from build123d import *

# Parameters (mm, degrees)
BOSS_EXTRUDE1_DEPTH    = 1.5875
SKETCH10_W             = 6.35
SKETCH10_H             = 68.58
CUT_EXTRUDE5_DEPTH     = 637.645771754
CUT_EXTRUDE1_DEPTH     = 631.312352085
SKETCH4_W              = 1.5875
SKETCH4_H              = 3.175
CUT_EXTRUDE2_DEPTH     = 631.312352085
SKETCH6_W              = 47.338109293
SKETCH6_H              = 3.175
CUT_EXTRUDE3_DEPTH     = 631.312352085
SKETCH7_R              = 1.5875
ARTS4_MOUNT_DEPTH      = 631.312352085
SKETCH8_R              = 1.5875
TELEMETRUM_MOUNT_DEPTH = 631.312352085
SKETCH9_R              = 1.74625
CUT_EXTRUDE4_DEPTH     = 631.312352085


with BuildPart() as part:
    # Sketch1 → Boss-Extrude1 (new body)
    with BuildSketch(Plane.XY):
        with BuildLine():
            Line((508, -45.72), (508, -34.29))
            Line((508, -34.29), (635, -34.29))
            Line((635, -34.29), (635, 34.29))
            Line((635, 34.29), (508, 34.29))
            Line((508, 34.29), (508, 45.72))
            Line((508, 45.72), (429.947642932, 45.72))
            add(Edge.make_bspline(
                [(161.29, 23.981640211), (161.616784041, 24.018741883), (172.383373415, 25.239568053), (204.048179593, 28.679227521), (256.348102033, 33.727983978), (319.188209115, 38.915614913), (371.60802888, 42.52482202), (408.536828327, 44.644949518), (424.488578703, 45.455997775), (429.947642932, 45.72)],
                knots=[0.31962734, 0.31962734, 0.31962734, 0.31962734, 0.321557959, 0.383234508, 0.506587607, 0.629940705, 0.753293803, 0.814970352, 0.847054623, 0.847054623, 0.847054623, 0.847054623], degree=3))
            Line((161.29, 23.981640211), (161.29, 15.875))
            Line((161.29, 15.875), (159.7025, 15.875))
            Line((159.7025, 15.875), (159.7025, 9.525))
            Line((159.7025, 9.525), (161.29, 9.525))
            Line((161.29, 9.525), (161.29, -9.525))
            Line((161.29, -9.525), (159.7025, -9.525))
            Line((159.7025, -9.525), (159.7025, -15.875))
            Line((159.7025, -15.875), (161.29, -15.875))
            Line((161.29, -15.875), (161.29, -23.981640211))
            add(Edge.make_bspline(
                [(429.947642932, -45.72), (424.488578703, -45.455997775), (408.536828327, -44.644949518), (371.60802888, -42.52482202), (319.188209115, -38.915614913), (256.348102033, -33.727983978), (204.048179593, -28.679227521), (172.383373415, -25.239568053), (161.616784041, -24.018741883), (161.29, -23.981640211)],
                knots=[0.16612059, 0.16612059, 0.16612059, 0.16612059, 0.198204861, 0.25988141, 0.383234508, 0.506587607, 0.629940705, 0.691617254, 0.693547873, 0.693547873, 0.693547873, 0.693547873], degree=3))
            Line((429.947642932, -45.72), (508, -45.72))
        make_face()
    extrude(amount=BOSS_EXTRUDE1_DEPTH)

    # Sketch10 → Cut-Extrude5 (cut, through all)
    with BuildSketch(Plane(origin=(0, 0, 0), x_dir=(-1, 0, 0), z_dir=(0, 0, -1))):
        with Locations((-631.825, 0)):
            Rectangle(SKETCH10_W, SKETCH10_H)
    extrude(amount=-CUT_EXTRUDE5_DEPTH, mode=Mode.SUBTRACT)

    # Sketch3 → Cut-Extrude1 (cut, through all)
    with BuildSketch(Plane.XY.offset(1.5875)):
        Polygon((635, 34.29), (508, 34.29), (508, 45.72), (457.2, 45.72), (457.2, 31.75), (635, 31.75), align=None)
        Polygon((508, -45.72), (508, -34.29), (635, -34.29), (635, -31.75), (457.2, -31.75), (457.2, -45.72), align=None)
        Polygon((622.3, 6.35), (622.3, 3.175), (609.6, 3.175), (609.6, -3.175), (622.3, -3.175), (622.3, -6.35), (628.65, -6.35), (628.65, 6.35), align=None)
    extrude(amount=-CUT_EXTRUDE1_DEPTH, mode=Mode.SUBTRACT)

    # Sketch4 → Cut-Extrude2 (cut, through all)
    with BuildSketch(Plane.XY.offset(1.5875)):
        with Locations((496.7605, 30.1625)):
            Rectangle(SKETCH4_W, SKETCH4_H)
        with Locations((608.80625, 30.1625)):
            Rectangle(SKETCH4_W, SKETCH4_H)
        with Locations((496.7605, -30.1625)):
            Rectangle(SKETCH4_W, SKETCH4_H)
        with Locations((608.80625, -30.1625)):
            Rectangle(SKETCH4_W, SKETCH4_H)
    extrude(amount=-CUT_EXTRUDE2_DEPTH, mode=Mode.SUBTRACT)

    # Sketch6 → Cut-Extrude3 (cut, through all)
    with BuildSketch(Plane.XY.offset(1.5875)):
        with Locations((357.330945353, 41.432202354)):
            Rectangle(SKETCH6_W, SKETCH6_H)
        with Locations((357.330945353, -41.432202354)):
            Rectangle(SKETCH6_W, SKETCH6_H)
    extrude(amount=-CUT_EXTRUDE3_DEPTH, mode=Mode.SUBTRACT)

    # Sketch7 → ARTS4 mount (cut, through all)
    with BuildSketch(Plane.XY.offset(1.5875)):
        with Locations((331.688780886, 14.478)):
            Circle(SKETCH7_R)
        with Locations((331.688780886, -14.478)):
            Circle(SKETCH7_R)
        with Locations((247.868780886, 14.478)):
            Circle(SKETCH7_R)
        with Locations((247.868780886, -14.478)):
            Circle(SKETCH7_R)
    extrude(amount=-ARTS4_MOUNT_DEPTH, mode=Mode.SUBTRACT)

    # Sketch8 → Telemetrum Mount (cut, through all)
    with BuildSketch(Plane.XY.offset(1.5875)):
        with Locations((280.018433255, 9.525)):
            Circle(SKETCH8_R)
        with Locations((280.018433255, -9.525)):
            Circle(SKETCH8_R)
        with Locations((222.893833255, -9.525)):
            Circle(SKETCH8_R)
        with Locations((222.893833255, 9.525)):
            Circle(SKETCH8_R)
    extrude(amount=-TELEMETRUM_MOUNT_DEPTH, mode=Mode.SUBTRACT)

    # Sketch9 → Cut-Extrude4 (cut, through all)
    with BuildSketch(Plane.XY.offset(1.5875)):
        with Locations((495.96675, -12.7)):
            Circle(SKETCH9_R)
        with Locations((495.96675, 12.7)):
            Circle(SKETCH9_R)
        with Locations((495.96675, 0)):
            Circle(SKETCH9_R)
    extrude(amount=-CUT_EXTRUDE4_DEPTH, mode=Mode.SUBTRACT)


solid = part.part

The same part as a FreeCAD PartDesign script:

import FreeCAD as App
import Part
import Sketcher

V = App.Vector
Q = App.Units.Quantity

doc = App.newDocument("Part")
body = doc.addObject("PartDesign::Body", "Body")

# Sketch on XY plane
sketch1 = body.newObject("Sketcher::SketchObject", "Sketch")
sketch1.AttachmentSupport = (doc.getObject("XY_Plane"), [""])
sketch1.MapMode = "FlatFace"
sketch1.addGeometry([
    Part.LineSegment(V(508, -45.72, 0), V(508, -34.29, 0)),  # 0
    Part.LineSegment(V(508, -34.29, 0), V(635, -34.29, 0)),  # 1
    Part.LineSegment(V(635, -34.29, 0), V(635, 34.29, 0)),  # 2
    Part.LineSegment(V(635, 34.29, 0), V(508, 34.29, 0)),  # 3
    Part.LineSegment(V(508, 34.29, 0), V(508, 45.72, 0)),  # 4
    Part.LineSegment(V(508, 45.72, 0), V(429.947643, 45.72, 0)),  # 5
    Part.BSplineCurve([V(161.29, 23.98164, 0), V(161.616784, 24.018742, 0), V(172.383373, 25.239568, 0), V(204.04818, 28.679228, 0), V(256.348102, 33.727984, 0), V(319.188209, 38.915615, 0), V(371.608029, 42.524822, 0), V(408.536828, 44.64495, 0), V(424.488579, 45.455998, 0), V(429.947643, 45.72, 0)], [4, 1, 1, 1, 1, 1, 1, 4], [0.31962734, 0.321557959, 0.383234508, 0.506587607, 0.629940705, 0.753293803, 0.814970352, 0.847054623], False, 3, [1, 1, 1, 1, 1, 1, 1, 1, 1, 1], False),  # 6
    Part.LineSegment(V(161.29, 23.98164, 0), V(161.29, 15.875, 0)),  # 7
    Part.LineSegment(V(161.29, 15.875, 0), V(159.7025, 15.875, 0)),  # 8
    Part.LineSegment(V(159.7025, 15.875, 0), V(159.7025, 9.525, 0)),  # 9
    Part.LineSegment(V(159.7025, 9.525, 0), V(161.29, 9.525, 0)),  # 10
    Part.LineSegment(V(161.29, 9.525, 0), V(161.29, -9.525, 0)),  # 11
    Part.LineSegment(V(161.29, -9.525, 0), V(159.7025, -9.525, 0)),  # 12
    Part.LineSegment(V(159.7025, -9.525, 0), V(159.7025, -15.875, 0)),  # 13
    Part.LineSegment(V(159.7025, -15.875, 0), V(161.29, -15.875, 0)),  # 14
    Part.LineSegment(V(161.29, -15.875, 0), V(161.29, -23.98164, 0)),  # 15
    Part.BSplineCurve([V(429.947643, -45.72, 0), V(424.488579, -45.455998, 0), V(408.536828, -44.64495, 0), V(371.608029, -42.524822, 0), V(319.188209, -38.915615, 0), V(256.348102, -33.727984, 0), V(204.04818, -28.679228, 0), V(172.383373, -25.239568, 0), V(161.616784, -24.018742, 0), V(161.29, -23.98164, 0)], [4, 1, 1, 1, 1, 1, 1, 4], [0.16612059, 0.198204861, 0.25988141, 0.383234508, 0.506587607, 0.629940705, 0.691617254, 0.693547873], False, 3, [1, 1, 1, 1, 1, 1, 1, 1, 1, 1], False),  # 16
    Part.LineSegment(V(429.947643, -45.72, 0), V(508, -45.72, 0)),  # 17
], False)
sketch1.addConstraint([
    Sketcher.Constraint("Block", 6),
    Sketcher.Constraint("Block", 16),
    Sketcher.Constraint("Coincident", 0, 2, 1, 1),
    Sketcher.Constraint("Coincident", 1, 2, 2, 1),
    Sketcher.Constraint("Coincident", 2, 2, 3, 1),
    Sketcher.Constraint("Coincident", 3, 2, 4, 1),
    Sketcher.Constraint("Coincident", 4, 2, 5, 1),
    Sketcher.Constraint("Coincident", 5, 2, 6, 2),
    Sketcher.Constraint("Coincident", 6, 1, 7, 1),
    Sketcher.Constraint("Coincident", 7, 2, 8, 1),
    Sketcher.Constraint("Coincident", 8, 2, 9, 1),
    Sketcher.Constraint("Coincident", 9, 2, 10, 1),
    Sketcher.Constraint("Coincident", 10, 2, 11, 1),
    Sketcher.Constraint("Coincident", 11, 2, 12, 1),
    Sketcher.Constraint("Coincident", 12, 2, 13, 1),
    Sketcher.Constraint("Coincident", 13, 2, 14, 1),
    Sketcher.Constraint("Coincident", 14, 2, 15, 1),
    Sketcher.Constraint("Coincident", 15, 2, 16, 2),
    Sketcher.Constraint("Coincident", 16, 1, 17, 1),
    Sketcher.Constraint("Coincident", 17, 2, 0, 1),
    Sketcher.Constraint("Vertical", 0),
    Sketcher.Constraint("Horizontal", 1),
    Sketcher.Constraint("Vertical", 2),
    Sketcher.Constraint("Horizontal", 3),
    Sketcher.Constraint("Vertical", 4),
    Sketcher.Constraint("Horizontal", 5),
    Sketcher.Constraint("Vertical", 7),
    Sketcher.Constraint("Horizontal", 8),
    Sketcher.Constraint("Vertical", 9),
    Sketcher.Constraint("Horizontal", 10),
    Sketcher.Constraint("Vertical", 11),
    Sketcher.Constraint("Horizontal", 12),
    Sketcher.Constraint("Vertical", 13),
    Sketcher.Constraint("Horizontal", 14),
    Sketcher.Constraint("Vertical", 15),
    Sketcher.Constraint("Horizontal", 17),
    Sketcher.Constraint("Symmetric", 0, 2, 3, 2, -1),
    Sketcher.Constraint("Symmetric", 9, 2, 12, 2, -1),
    Sketcher.Constraint("Vertical", 7, 2, 10, 2),
    Sketcher.Constraint("Equal", 9, 13),
    Sketcher.Constraint("DistanceX", 1, 1, 1, 2, Q("5 in")),
    Sketcher.Constraint("DistanceY", 2, 1, 2, 2, Q("2.7 in")),
    Sketcher.Constraint("DistanceX", -1, 1, 0, 2, Q("20 in")),
    Sketcher.Constraint("DistanceY", 11, 2, 7, 2, Q("1 in")),
    Sketcher.Constraint("DistanceY", 9, 2, 9, 1, Q("0.25 in")),
    Sketcher.Constraint("DistanceX", 8, 2, 8, 1, Q("0.0625 in")),
])
pad1 = body.newObject("PartDesign::Pad", "Pad")
pad1.Profile = sketch1
pad1.Length = Q("0.0625 in")

# Sketch on XY plane
sketch2 = body.newObject("Sketcher::SketchObject", "Sketch001")
sketch2.AttachmentSupport = (doc.getObject("XY_Plane"), [""])
sketch2.MapMode = "FlatFace"
sketch2.addGeometry([
    Part.LineSegment(V(635, 34, 0), V(635, -34, 0)),
    Part.LineSegment(V(635, -34, 0), V(629, -34, 0)),
    Part.LineSegment(V(629, -34, 0), V(629, 34, 0)),
    Part.LineSegment(V(629, 34, 0), V(635, 34, 0)),
], False)
sketch2.addConstraint([
    Sketcher.Constraint("Coincident", 0, 2, 1, 1),
    Sketcher.Constraint("Coincident", 1, 2, 2, 1),
    Sketcher.Constraint("Coincident", 2, 2, 3, 1),
    Sketcher.Constraint("Coincident", 3, 2, 0, 1),
    Sketcher.Constraint("Vertical", 0),
    Sketcher.Constraint("Horizontal", 1),
    Sketcher.Constraint("Vertical", 2),
    Sketcher.Constraint("Horizontal", 3),
    Sketcher.Constraint("DistanceY", 0, 2, 0, 1, Q("2.7 in")),
    Sketcher.Constraint("DistanceX", -1, 1, 0, 2, Q("25 in")),
    Sketcher.Constraint("DistanceX", 1, 2, 1, 1, Q("0.25 in")),
    Sketcher.Constraint("DistanceY", 0, 2, -1, 1, Q("1.35 in")),
])
pocket1 = body.newObject("PartDesign::Pocket", "Pocket")
pocket1.Profile = sketch2
pocket1.Type = "ThroughAll"
pocket1.Reversed = True

# Sketch on XY plane
sketch3 = body.newObject("Sketcher::SketchObject", "Sketch002")
sketch3.AttachmentSupport = (doc.getObject("XY_Plane"), [""])
sketch3.MapMode = "FlatFace"
sketch3.AttachmentOffset = App.Placement(V(0, 0, 0.0625 * 25.4), App.Rotation())
sketch3.addGeometry([
    Part.LineSegment(V(635, 34.3, 0), V(508, 34.3, 0)),  # 0
    Part.LineSegment(V(508, 34.3, 0), V(508, 45.7, 0)),  # 1
    Part.LineSegment(V(508, 45.7, 0), V(457.2, 45.7, 0)),  # 2
    Part.LineSegment(V(457.2, 45.7, 0), V(457.2, 31.8, 0)),  # 3
    Part.LineSegment(V(457.2, 31.8, 0), V(635, 31.8, 0)),  # 4
    Part.LineSegment(V(635, 31.8, 0), V(635, 34.3, 0)),  # 5
    Part.LineSegment(V(508, -45.7, 0), V(508, -34.3, 0)),  # 6
    Part.LineSegment(V(508, -34.3, 0), V(635, -34.3, 0)),  # 7
    Part.LineSegment(V(635, -34.3, 0), V(635, -31.8, 0)),  # 8
    Part.LineSegment(V(635, -31.8, 0), V(457.2, -31.8, 0)),  # 9
    Part.LineSegment(V(457.2, -31.8, 0), V(457.2, -45.7, 0)),  # 10
    Part.LineSegment(V(457.2, -45.7, 0), V(508, -45.7, 0)),  # 11
    Part.LineSegment(V(622.3, 6.3, 0), V(622.3, 3.2, 0)),  # 12
    Part.LineSegment(V(622.3, 3.2, 0), V(609.6, 3.2, 0)),  # 13
    Part.LineSegment(V(609.6, 3.2, 0), V(609.6, -3.2, 0)),  # 14
    Part.LineSegment(V(609.6, -3.2, 0), V(622.3, -3.2, 0)),  # 15
    Part.LineSegment(V(622.3, -3.2, 0), V(622.3, -6.3, 0)),  # 16
    Part.LineSegment(V(622.3, -6.3, 0), V(628.6, -6.3, 0)),  # 17
    Part.LineSegment(V(628.6, -6.3, 0), V(628.6, 6.3, 0)),  # 18
    Part.LineSegment(V(628.6, 6.3, 0), V(622.3, 6.3, 0)),  # 19
], False)
sketch3.addConstraint([
    Sketcher.Constraint("Coincident", 0, 2, 1, 1),
    Sketcher.Constraint("Coincident", 1, 2, 2, 1),
    Sketcher.Constraint("Coincident", 2, 2, 3, 1),
    Sketcher.Constraint("Coincident", 3, 2, 4, 1),
    Sketcher.Constraint("Coincident", 4, 2, 5, 1),
    Sketcher.Constraint("Coincident", 5, 2, 0, 1),
    Sketcher.Constraint("Coincident", 6, 2, 7, 1),
    Sketcher.Constraint("Coincident", 7, 2, 8, 1),
    Sketcher.Constraint("Coincident", 8, 2, 9, 1),
    Sketcher.Constraint("Coincident", 9, 2, 10, 1),
    Sketcher.Constraint("Coincident", 10, 2, 11, 1),
    Sketcher.Constraint("Coincident", 11, 2, 6, 1),
    Sketcher.Constraint("Coincident", 12, 2, 13, 1),
    Sketcher.Constraint("Coincident", 13, 2, 14, 1),
    Sketcher.Constraint("Coincident", 14, 2, 15, 1),
    Sketcher.Constraint("Coincident", 15, 2, 16, 1),
    Sketcher.Constraint("Coincident", 16, 2, 17, 1),
    Sketcher.Constraint("Coincident", 17, 2, 18, 1),
    Sketcher.Constraint("Coincident", 18, 2, 19, 1),
    Sketcher.Constraint("Coincident", 19, 2, 12, 1),
    Sketcher.Constraint("Horizontal", 0),
    Sketcher.Constraint("Vertical", 1),
    Sketcher.Constraint("Horizontal", 2),
    Sketcher.Constraint("Vertical", 3),
    Sketcher.Constraint("Horizontal", 4),
    Sketcher.Constraint("Vertical", 5),
    Sketcher.Constraint("Vertical", 6),
    Sketcher.Constraint("Horizontal", 7),
    Sketcher.Constraint("Vertical", 8),
    Sketcher.Constraint("Horizontal", 9),
    Sketcher.Constraint("Vertical", 10),
    Sketcher.Constraint("Horizontal", 11),
    Sketcher.Constraint("Vertical", 12),
    Sketcher.Constraint("Horizontal", 13),
    Sketcher.Constraint("Vertical", 14),
    Sketcher.Constraint("Horizontal", 15),
    Sketcher.Constraint("Vertical", 16),
    Sketcher.Constraint("Horizontal", 17),
    Sketcher.Constraint("Vertical", 18),
    Sketcher.Constraint("Horizontal", 19),
    Sketcher.Constraint("Symmetric", 0, 2, 6, 2, -1),
    Sketcher.Constraint("Symmetric", 4, 2, 8, 2, -1),
    Sketcher.Constraint("Symmetric", 2, 2, 10, 2, -1),
    Sketcher.Constraint("Symmetric", 12, 2, 15, 2, -1),
    Sketcher.Constraint("Equal", 19, 14),
    Sketcher.Constraint("Equal", 12, 16),
    Sketcher.Constraint("Equal", 15, 18),
    Sketcher.Constraint("DistanceX", 0, 2, 0, 1, Q("5 in")),
    Sketcher.Constraint("DistanceX", 2, 2, 2, 1, Q("2 in")),
    Sketcher.Constraint("DistanceX", 13, 2, 13, 1, Q("0.5 in")),
    Sketcher.Constraint("DistanceY", 5, 1, 5, 2, Q("0.1 in")),
    Sketcher.Constraint("DistanceX", -1, 1, 0, 2, Q("20 in")),
    Sketcher.Constraint("DistanceX", -1, 1, 13, 2, Q("24 in")),
    Sketcher.Constraint("DistanceY", 8, 2, 16, 2, Q("1 in")),
    Sketcher.Constraint("DistanceX", 17, 1, 17, 2, Q("0.25 in")),
    Sketcher.Constraint("DistanceY", 1, 1, 1, 2, Q("0.45 in")),
])
pocket2 = body.newObject("PartDesign::Pocket", "Pocket001")
pocket2.Profile = sketch3
pocket2.Type = "ThroughAll"

# Sketch on XY plane
sketch4 = body.newObject("Sketcher::SketchObject", "Sketch003")
sketch4.AttachmentSupport = (doc.getObject("XY_Plane"), [""])
sketch4.MapMode = "FlatFace"
sketch4.AttachmentOffset = App.Placement(V(0, 0, 0.0625 * 25.4), App.Rotation())
sketch4.addGeometry([
    Part.LineSegment(V(496, 31.8, 0), V(496, 28.6, 0)),  # 0
    Part.LineSegment(V(496, 28.6, 0), V(497.6, 28.6, 0)),  # 1
    Part.LineSegment(V(497.6, 28.6, 0), V(497.6, 31.8, 0)),  # 2
    Part.LineSegment(V(497.6, 31.8, 0), V(496, 31.8, 0)),  # 3
    Part.LineSegment(V(608, 31.8, 0), V(608, 28.6, 0)),  # 4
    Part.LineSegment(V(608, 28.6, 0), V(609.6, 28.6, 0)),  # 5
    Part.LineSegment(V(609.6, 28.6, 0), V(609.6, 31.8, 0)),  # 6
    Part.LineSegment(V(609.6, 31.8, 0), V(608, 31.8, 0)),  # 7
    Part.LineSegment(V(496, -28.6, 0), V(496, -31.8, 0)),  # 8
    Part.LineSegment(V(496, -31.8, 0), V(497.6, -31.8, 0)),  # 9
    Part.LineSegment(V(497.6, -31.8, 0), V(497.6, -28.6, 0)),  # 10
    Part.LineSegment(V(497.6, -28.6, 0), V(496, -28.6, 0)),  # 11
    Part.LineSegment(V(608, -28.6, 0), V(608, -31.8, 0)),  # 12
    Part.LineSegment(V(608, -31.8, 0), V(609.6, -31.8, 0)),  # 13
    Part.LineSegment(V(609.6, -31.8, 0), V(609.6, -28.6, 0)),  # 14
    Part.LineSegment(V(609.6, -28.6, 0), V(608, -28.6, 0)),  # 15
], False)
sketch4.addConstraint([
    Sketcher.Constraint("Coincident", 0, 2, 1, 1),
    Sketcher.Constraint("Coincident", 1, 2, 2, 1),
    Sketcher.Constraint("Coincident", 2, 2, 3, 1),
    Sketcher.Constraint("Coincident", 3, 2, 0, 1),
    Sketcher.Constraint("Coincident", 4, 2, 5, 1),
    Sketcher.Constraint("Coincident", 5, 2, 6, 1),
    Sketcher.Constraint("Coincident", 6, 2, 7, 1),
    Sketcher.Constraint("Coincident", 7, 2, 4, 1),
    Sketcher.Constraint("Coincident", 8, 2, 9, 1),
    Sketcher.Constraint("Coincident", 9, 2, 10, 1),
    Sketcher.Constraint("Coincident", 10, 2, 11, 1),
    Sketcher.Constraint("Coincident", 11, 2, 8, 1),
    Sketcher.Constraint("Coincident", 12, 2, 13, 1),
    Sketcher.Constraint("Coincident", 13, 2, 14, 1),
    Sketcher.Constraint("Coincident", 14, 2, 15, 1),
    Sketcher.Constraint("Coincident", 15, 2, 12, 1),
    Sketcher.Constraint("Vertical", 0),
    Sketcher.Constraint("Horizontal", 1),
    Sketcher.Constraint("Vertical", 2),
    Sketcher.Constraint("Horizontal", 3),
    Sketcher.Constraint("Vertical", 4),
    Sketcher.Constraint("Horizontal", 5),
    Sketcher.Constraint("Vertical", 6),
    Sketcher.Constraint("Horizontal", 7),
    Sketcher.Constraint("Vertical", 8),
    Sketcher.Constraint("Horizontal", 9),
    Sketcher.Constraint("Vertical", 10),
    Sketcher.Constraint("Horizontal", 11),
    Sketcher.Constraint("Vertical", 12),
    Sketcher.Constraint("Horizontal", 13),
    Sketcher.Constraint("Vertical", 14),
    Sketcher.Constraint("Horizontal", 15),
    Sketcher.Constraint("Symmetric", 3, 2, 8, 2, -1),
    Sketcher.Constraint("Symmetric", 1, 2, 10, 2, -1),
    Sketcher.Constraint("Symmetric", 7, 2, 12, 2, -1),
    Sketcher.Constraint("Symmetric", 5, 2, 14, 2, -1),
    Sketcher.Constraint("Horizontal", 1, 2, 4, 2),
    Sketcher.Constraint("Horizontal", 3, 2, 6, 2),
    Sketcher.Constraint("Equal", 3, 5),
    Sketcher.Constraint("DistanceX", -1, 1, 5, 2, Q("24 in")),
    Sketcher.Constraint("DistanceY", 8, 2, 3, 2, Q("2.5 in")),
    Sketcher.Constraint("DistanceX", 1, 1, 1, 2, Q("0.0625 in")),
    Sketcher.Constraint("DistanceY", 0, 2, 0, 1, Q("0.125 in")),
    Sketcher.Constraint("DistanceX", -1, 1, 0, 2, Q("495.96675 mm")),
])
pocket3 = body.newObject("PartDesign::Pocket", "Pocket002")
pocket3.Profile = sketch4
pocket3.Type = "ThroughAll"

# Sketch on XY plane
sketch5 = body.newObject("Sketcher::SketchObject", "Sketch004")
sketch5.AttachmentSupport = (doc.getObject("XY_Plane"), [""])
sketch5.MapMode = "FlatFace"
sketch5.AttachmentOffset = App.Placement(V(0, 0, 0.0625 * 25.4), App.Rotation())
sketch5.addGeometry([
    Part.LineSegment(V(333.7, 43, 0), V(333.7, 39.8, 0)),  # 0
    Part.LineSegment(V(333.7, 39.8, 0), V(381, 39.8, 0)),  # 1
    Part.LineSegment(V(381, 39.8, 0), V(381, 43, 0)),  # 2
    Part.LineSegment(V(381, 43, 0), V(333.7, 43, 0)),  # 3
    Part.LineSegment(V(333.7, -39.8, 0), V(333.7, -43, 0)),  # 4
    Part.LineSegment(V(333.7, -43, 0), V(381, -43, 0)),  # 5
    Part.LineSegment(V(381, -43, 0), V(381, -39.8, 0)),  # 6
    Part.LineSegment(V(381, -39.8, 0), V(333.7, -39.8, 0)),  # 7
], False)
sketch5.addConstraint([
    Sketcher.Constraint("Coincident", 0, 2, 1, 1),
    Sketcher.Constraint("Coincident", 1, 2, 2, 1),
    Sketcher.Constraint("Coincident", 2, 2, 3, 1),
    Sketcher.Constraint("Coincident", 3, 2, 0, 1),
    Sketcher.Constraint("Coincident", 4, 2, 5, 1),
    Sketcher.Constraint("Coincident", 5, 2, 6, 1),
    Sketcher.Constraint("Coincident", 6, 2, 7, 1),
    Sketcher.Constraint("Coincident", 7, 2, 4, 1),
    Sketcher.Constraint("Vertical", 0),
    Sketcher.Constraint("Horizontal", 1),
    Sketcher.Constraint("Vertical", 2),
    Sketcher.Constraint("Horizontal", 3),
    Sketcher.Constraint("Vertical", 4),
    Sketcher.Constraint("Horizontal", 5),
    Sketcher.Constraint("Vertical", 6),
    Sketcher.Constraint("Horizontal", 7),
    Sketcher.Constraint("Symmetric", 3, 2, 4, 2, -1),
    Sketcher.Constraint("Symmetric", 1, 2, 6, 2, -1),
    Sketcher.Constraint("DistanceX", -1, 1, 1, 2, Q("15 in")),
    Sketcher.Constraint("DistanceY", 0, 2, 0, 1, Q("0.125 in")),
    Sketcher.Constraint("DistanceX", 1, 1, 1, 2, Q("47.338109 mm")),
    Sketcher.Constraint("DistanceY", -1, 1, 0, 2, Q("39.844702 mm")),
])
pocket4 = body.newObject("PartDesign::Pocket", "Pocket003")
pocket4.Profile = sketch5
pocket4.Type = "ThroughAll"

# Sketch on XY plane
sketch6 = body.newObject("Sketcher::SketchObject", "Sketch005")
sketch6.AttachmentSupport = (doc.getObject("XY_Plane"), [""])
sketch6.MapMode = "FlatFace"
sketch6.AttachmentOffset = App.Placement(V(0, 0, 0.0625 * 25.4), App.Rotation())
sketch6.addGeometry([
    Part.Circle(V(331.7, 14.5, 0), V(0, 0, 1), 1.6),
    Part.Circle(V(331.7, -14.5, 0), V(0, 0, 1), 1.6),
    Part.Circle(V(247.9, 14.5, 0), V(0, 0, 1), 1.6),
    Part.Circle(V(247.9, -14.5, 0), V(0, 0, 1), 1.6),
], False)
sketch6.addConstraint([
    Sketcher.Constraint("Equal", 0, 1),
    Sketcher.Constraint("Equal", 1, 2),
    Sketcher.Constraint("Equal", 2, 3),
    Sketcher.Constraint("Symmetric", 0, 3, 1, 3, -1),
    Sketcher.Constraint("Symmetric", 2, 3, 3, 3, -1),
    Sketcher.Constraint("Horizontal", 0, 3, 2, 3),
    Sketcher.Constraint("Diameter", 0, Q("0.125 in")),
    Sketcher.Constraint("DistanceX", 2, 3, 0, 3, Q("3.3 in")),
    Sketcher.Constraint("DistanceY", -1, 1, 0, 3, Q("0.57 in")),
    Sketcher.Constraint("DistanceX", -1, 1, 0, 3, Q("331.688781 mm")),
])
pocket5 = body.newObject("PartDesign::Pocket", "Pocket004")
pocket5.Profile = sketch6
pocket5.Type = "ThroughAll"

# Sketch on XY plane
sketch7 = body.newObject("Sketcher::SketchObject", "Sketch006")
sketch7.AttachmentSupport = (doc.getObject("XY_Plane"), [""])
sketch7.MapMode = "FlatFace"
sketch7.AttachmentOffset = App.Placement(V(0, 0, 0.0625 * 25.4), App.Rotation())
sketch7.addGeometry([
    Part.Circle(V(280, 9.5, 0), V(0, 0, 1), 1.6),
    Part.Circle(V(280, -9.5, 0), V(0, 0, 1), 1.6),
    Part.Circle(V(222.9, -9.5, 0), V(0, 0, 1), 1.6),
    Part.Circle(V(222.9, 9.5, 0), V(0, 0, 1), 1.6),
], False)
sketch7.addConstraint([
    Sketcher.Constraint("Equal", 0, 1),
    Sketcher.Constraint("Equal", 1, 2),
    Sketcher.Constraint("Equal", 2, 3),
    Sketcher.Constraint("Symmetric", 0, 3, 1, 3, -1),
    Sketcher.Constraint("Symmetric", 2, 3, 3, 3, -1),
    Sketcher.Constraint("Horizontal", 1, 3, 2, 3),
    Sketcher.Constraint("Diameter", 0, Q("0.125 in")),
    Sketcher.Constraint("DistanceY", 1, 3, 0, 3, Q("0.75 in")),
    Sketcher.Constraint("DistanceX", 2, 3, 1, 3, Q("2.249 in")),
    Sketcher.Constraint("DistanceX", -1, 1, 0, 3, Q("280.018433 mm")),
])
pocket6 = body.newObject("PartDesign::Pocket", "Pocket005")
pocket6.Profile = sketch7
pocket6.Type = "ThroughAll"

# Sketch on XY plane
sketch8 = body.newObject("Sketcher::SketchObject", "Sketch007")
sketch8.AttachmentSupport = (doc.getObject("XY_Plane"), [""])
sketch8.MapMode = "FlatFace"
sketch8.AttachmentOffset = App.Placement(V(0, 0, 0.0625 * 25.4), App.Rotation())
sketch8.addGeometry([
    Part.Circle(V(496, -12.7, 0), V(0, 0, 1), 1.7),
    Part.Circle(V(496, 12.7, 0), V(0, 0, 1), 1.7),
    Part.Circle(V(496, 0, 0), V(0, 0, 1), 1.7),
], False)
sketch8.addConstraint([
    Sketcher.Constraint("Equal", 0, 1),
    Sketcher.Constraint("Equal", 1, 2),
    Sketcher.Constraint("Symmetric", 0, 3, 1, 3, -1),
    Sketcher.Constraint("PointOnObject", 2, 3, -1),
    Sketcher.Constraint("Vertical", 1, 3, 2, 3),
    Sketcher.Constraint("DistanceY", 0, 3, 1, 3, Q("1 in")),
    Sketcher.Constraint("Diameter", 0, Q("0.1375 in")),
    Sketcher.Constraint("DistanceX", -1, 1, 0, 3, Q("495.96675 mm")),
])
pocket7 = body.newObject("PartDesign::Pocket", "Pocket006")
pocket7.Profile = sketch8
pocket7.Type = "ThroughAll"

doc.recompute()
